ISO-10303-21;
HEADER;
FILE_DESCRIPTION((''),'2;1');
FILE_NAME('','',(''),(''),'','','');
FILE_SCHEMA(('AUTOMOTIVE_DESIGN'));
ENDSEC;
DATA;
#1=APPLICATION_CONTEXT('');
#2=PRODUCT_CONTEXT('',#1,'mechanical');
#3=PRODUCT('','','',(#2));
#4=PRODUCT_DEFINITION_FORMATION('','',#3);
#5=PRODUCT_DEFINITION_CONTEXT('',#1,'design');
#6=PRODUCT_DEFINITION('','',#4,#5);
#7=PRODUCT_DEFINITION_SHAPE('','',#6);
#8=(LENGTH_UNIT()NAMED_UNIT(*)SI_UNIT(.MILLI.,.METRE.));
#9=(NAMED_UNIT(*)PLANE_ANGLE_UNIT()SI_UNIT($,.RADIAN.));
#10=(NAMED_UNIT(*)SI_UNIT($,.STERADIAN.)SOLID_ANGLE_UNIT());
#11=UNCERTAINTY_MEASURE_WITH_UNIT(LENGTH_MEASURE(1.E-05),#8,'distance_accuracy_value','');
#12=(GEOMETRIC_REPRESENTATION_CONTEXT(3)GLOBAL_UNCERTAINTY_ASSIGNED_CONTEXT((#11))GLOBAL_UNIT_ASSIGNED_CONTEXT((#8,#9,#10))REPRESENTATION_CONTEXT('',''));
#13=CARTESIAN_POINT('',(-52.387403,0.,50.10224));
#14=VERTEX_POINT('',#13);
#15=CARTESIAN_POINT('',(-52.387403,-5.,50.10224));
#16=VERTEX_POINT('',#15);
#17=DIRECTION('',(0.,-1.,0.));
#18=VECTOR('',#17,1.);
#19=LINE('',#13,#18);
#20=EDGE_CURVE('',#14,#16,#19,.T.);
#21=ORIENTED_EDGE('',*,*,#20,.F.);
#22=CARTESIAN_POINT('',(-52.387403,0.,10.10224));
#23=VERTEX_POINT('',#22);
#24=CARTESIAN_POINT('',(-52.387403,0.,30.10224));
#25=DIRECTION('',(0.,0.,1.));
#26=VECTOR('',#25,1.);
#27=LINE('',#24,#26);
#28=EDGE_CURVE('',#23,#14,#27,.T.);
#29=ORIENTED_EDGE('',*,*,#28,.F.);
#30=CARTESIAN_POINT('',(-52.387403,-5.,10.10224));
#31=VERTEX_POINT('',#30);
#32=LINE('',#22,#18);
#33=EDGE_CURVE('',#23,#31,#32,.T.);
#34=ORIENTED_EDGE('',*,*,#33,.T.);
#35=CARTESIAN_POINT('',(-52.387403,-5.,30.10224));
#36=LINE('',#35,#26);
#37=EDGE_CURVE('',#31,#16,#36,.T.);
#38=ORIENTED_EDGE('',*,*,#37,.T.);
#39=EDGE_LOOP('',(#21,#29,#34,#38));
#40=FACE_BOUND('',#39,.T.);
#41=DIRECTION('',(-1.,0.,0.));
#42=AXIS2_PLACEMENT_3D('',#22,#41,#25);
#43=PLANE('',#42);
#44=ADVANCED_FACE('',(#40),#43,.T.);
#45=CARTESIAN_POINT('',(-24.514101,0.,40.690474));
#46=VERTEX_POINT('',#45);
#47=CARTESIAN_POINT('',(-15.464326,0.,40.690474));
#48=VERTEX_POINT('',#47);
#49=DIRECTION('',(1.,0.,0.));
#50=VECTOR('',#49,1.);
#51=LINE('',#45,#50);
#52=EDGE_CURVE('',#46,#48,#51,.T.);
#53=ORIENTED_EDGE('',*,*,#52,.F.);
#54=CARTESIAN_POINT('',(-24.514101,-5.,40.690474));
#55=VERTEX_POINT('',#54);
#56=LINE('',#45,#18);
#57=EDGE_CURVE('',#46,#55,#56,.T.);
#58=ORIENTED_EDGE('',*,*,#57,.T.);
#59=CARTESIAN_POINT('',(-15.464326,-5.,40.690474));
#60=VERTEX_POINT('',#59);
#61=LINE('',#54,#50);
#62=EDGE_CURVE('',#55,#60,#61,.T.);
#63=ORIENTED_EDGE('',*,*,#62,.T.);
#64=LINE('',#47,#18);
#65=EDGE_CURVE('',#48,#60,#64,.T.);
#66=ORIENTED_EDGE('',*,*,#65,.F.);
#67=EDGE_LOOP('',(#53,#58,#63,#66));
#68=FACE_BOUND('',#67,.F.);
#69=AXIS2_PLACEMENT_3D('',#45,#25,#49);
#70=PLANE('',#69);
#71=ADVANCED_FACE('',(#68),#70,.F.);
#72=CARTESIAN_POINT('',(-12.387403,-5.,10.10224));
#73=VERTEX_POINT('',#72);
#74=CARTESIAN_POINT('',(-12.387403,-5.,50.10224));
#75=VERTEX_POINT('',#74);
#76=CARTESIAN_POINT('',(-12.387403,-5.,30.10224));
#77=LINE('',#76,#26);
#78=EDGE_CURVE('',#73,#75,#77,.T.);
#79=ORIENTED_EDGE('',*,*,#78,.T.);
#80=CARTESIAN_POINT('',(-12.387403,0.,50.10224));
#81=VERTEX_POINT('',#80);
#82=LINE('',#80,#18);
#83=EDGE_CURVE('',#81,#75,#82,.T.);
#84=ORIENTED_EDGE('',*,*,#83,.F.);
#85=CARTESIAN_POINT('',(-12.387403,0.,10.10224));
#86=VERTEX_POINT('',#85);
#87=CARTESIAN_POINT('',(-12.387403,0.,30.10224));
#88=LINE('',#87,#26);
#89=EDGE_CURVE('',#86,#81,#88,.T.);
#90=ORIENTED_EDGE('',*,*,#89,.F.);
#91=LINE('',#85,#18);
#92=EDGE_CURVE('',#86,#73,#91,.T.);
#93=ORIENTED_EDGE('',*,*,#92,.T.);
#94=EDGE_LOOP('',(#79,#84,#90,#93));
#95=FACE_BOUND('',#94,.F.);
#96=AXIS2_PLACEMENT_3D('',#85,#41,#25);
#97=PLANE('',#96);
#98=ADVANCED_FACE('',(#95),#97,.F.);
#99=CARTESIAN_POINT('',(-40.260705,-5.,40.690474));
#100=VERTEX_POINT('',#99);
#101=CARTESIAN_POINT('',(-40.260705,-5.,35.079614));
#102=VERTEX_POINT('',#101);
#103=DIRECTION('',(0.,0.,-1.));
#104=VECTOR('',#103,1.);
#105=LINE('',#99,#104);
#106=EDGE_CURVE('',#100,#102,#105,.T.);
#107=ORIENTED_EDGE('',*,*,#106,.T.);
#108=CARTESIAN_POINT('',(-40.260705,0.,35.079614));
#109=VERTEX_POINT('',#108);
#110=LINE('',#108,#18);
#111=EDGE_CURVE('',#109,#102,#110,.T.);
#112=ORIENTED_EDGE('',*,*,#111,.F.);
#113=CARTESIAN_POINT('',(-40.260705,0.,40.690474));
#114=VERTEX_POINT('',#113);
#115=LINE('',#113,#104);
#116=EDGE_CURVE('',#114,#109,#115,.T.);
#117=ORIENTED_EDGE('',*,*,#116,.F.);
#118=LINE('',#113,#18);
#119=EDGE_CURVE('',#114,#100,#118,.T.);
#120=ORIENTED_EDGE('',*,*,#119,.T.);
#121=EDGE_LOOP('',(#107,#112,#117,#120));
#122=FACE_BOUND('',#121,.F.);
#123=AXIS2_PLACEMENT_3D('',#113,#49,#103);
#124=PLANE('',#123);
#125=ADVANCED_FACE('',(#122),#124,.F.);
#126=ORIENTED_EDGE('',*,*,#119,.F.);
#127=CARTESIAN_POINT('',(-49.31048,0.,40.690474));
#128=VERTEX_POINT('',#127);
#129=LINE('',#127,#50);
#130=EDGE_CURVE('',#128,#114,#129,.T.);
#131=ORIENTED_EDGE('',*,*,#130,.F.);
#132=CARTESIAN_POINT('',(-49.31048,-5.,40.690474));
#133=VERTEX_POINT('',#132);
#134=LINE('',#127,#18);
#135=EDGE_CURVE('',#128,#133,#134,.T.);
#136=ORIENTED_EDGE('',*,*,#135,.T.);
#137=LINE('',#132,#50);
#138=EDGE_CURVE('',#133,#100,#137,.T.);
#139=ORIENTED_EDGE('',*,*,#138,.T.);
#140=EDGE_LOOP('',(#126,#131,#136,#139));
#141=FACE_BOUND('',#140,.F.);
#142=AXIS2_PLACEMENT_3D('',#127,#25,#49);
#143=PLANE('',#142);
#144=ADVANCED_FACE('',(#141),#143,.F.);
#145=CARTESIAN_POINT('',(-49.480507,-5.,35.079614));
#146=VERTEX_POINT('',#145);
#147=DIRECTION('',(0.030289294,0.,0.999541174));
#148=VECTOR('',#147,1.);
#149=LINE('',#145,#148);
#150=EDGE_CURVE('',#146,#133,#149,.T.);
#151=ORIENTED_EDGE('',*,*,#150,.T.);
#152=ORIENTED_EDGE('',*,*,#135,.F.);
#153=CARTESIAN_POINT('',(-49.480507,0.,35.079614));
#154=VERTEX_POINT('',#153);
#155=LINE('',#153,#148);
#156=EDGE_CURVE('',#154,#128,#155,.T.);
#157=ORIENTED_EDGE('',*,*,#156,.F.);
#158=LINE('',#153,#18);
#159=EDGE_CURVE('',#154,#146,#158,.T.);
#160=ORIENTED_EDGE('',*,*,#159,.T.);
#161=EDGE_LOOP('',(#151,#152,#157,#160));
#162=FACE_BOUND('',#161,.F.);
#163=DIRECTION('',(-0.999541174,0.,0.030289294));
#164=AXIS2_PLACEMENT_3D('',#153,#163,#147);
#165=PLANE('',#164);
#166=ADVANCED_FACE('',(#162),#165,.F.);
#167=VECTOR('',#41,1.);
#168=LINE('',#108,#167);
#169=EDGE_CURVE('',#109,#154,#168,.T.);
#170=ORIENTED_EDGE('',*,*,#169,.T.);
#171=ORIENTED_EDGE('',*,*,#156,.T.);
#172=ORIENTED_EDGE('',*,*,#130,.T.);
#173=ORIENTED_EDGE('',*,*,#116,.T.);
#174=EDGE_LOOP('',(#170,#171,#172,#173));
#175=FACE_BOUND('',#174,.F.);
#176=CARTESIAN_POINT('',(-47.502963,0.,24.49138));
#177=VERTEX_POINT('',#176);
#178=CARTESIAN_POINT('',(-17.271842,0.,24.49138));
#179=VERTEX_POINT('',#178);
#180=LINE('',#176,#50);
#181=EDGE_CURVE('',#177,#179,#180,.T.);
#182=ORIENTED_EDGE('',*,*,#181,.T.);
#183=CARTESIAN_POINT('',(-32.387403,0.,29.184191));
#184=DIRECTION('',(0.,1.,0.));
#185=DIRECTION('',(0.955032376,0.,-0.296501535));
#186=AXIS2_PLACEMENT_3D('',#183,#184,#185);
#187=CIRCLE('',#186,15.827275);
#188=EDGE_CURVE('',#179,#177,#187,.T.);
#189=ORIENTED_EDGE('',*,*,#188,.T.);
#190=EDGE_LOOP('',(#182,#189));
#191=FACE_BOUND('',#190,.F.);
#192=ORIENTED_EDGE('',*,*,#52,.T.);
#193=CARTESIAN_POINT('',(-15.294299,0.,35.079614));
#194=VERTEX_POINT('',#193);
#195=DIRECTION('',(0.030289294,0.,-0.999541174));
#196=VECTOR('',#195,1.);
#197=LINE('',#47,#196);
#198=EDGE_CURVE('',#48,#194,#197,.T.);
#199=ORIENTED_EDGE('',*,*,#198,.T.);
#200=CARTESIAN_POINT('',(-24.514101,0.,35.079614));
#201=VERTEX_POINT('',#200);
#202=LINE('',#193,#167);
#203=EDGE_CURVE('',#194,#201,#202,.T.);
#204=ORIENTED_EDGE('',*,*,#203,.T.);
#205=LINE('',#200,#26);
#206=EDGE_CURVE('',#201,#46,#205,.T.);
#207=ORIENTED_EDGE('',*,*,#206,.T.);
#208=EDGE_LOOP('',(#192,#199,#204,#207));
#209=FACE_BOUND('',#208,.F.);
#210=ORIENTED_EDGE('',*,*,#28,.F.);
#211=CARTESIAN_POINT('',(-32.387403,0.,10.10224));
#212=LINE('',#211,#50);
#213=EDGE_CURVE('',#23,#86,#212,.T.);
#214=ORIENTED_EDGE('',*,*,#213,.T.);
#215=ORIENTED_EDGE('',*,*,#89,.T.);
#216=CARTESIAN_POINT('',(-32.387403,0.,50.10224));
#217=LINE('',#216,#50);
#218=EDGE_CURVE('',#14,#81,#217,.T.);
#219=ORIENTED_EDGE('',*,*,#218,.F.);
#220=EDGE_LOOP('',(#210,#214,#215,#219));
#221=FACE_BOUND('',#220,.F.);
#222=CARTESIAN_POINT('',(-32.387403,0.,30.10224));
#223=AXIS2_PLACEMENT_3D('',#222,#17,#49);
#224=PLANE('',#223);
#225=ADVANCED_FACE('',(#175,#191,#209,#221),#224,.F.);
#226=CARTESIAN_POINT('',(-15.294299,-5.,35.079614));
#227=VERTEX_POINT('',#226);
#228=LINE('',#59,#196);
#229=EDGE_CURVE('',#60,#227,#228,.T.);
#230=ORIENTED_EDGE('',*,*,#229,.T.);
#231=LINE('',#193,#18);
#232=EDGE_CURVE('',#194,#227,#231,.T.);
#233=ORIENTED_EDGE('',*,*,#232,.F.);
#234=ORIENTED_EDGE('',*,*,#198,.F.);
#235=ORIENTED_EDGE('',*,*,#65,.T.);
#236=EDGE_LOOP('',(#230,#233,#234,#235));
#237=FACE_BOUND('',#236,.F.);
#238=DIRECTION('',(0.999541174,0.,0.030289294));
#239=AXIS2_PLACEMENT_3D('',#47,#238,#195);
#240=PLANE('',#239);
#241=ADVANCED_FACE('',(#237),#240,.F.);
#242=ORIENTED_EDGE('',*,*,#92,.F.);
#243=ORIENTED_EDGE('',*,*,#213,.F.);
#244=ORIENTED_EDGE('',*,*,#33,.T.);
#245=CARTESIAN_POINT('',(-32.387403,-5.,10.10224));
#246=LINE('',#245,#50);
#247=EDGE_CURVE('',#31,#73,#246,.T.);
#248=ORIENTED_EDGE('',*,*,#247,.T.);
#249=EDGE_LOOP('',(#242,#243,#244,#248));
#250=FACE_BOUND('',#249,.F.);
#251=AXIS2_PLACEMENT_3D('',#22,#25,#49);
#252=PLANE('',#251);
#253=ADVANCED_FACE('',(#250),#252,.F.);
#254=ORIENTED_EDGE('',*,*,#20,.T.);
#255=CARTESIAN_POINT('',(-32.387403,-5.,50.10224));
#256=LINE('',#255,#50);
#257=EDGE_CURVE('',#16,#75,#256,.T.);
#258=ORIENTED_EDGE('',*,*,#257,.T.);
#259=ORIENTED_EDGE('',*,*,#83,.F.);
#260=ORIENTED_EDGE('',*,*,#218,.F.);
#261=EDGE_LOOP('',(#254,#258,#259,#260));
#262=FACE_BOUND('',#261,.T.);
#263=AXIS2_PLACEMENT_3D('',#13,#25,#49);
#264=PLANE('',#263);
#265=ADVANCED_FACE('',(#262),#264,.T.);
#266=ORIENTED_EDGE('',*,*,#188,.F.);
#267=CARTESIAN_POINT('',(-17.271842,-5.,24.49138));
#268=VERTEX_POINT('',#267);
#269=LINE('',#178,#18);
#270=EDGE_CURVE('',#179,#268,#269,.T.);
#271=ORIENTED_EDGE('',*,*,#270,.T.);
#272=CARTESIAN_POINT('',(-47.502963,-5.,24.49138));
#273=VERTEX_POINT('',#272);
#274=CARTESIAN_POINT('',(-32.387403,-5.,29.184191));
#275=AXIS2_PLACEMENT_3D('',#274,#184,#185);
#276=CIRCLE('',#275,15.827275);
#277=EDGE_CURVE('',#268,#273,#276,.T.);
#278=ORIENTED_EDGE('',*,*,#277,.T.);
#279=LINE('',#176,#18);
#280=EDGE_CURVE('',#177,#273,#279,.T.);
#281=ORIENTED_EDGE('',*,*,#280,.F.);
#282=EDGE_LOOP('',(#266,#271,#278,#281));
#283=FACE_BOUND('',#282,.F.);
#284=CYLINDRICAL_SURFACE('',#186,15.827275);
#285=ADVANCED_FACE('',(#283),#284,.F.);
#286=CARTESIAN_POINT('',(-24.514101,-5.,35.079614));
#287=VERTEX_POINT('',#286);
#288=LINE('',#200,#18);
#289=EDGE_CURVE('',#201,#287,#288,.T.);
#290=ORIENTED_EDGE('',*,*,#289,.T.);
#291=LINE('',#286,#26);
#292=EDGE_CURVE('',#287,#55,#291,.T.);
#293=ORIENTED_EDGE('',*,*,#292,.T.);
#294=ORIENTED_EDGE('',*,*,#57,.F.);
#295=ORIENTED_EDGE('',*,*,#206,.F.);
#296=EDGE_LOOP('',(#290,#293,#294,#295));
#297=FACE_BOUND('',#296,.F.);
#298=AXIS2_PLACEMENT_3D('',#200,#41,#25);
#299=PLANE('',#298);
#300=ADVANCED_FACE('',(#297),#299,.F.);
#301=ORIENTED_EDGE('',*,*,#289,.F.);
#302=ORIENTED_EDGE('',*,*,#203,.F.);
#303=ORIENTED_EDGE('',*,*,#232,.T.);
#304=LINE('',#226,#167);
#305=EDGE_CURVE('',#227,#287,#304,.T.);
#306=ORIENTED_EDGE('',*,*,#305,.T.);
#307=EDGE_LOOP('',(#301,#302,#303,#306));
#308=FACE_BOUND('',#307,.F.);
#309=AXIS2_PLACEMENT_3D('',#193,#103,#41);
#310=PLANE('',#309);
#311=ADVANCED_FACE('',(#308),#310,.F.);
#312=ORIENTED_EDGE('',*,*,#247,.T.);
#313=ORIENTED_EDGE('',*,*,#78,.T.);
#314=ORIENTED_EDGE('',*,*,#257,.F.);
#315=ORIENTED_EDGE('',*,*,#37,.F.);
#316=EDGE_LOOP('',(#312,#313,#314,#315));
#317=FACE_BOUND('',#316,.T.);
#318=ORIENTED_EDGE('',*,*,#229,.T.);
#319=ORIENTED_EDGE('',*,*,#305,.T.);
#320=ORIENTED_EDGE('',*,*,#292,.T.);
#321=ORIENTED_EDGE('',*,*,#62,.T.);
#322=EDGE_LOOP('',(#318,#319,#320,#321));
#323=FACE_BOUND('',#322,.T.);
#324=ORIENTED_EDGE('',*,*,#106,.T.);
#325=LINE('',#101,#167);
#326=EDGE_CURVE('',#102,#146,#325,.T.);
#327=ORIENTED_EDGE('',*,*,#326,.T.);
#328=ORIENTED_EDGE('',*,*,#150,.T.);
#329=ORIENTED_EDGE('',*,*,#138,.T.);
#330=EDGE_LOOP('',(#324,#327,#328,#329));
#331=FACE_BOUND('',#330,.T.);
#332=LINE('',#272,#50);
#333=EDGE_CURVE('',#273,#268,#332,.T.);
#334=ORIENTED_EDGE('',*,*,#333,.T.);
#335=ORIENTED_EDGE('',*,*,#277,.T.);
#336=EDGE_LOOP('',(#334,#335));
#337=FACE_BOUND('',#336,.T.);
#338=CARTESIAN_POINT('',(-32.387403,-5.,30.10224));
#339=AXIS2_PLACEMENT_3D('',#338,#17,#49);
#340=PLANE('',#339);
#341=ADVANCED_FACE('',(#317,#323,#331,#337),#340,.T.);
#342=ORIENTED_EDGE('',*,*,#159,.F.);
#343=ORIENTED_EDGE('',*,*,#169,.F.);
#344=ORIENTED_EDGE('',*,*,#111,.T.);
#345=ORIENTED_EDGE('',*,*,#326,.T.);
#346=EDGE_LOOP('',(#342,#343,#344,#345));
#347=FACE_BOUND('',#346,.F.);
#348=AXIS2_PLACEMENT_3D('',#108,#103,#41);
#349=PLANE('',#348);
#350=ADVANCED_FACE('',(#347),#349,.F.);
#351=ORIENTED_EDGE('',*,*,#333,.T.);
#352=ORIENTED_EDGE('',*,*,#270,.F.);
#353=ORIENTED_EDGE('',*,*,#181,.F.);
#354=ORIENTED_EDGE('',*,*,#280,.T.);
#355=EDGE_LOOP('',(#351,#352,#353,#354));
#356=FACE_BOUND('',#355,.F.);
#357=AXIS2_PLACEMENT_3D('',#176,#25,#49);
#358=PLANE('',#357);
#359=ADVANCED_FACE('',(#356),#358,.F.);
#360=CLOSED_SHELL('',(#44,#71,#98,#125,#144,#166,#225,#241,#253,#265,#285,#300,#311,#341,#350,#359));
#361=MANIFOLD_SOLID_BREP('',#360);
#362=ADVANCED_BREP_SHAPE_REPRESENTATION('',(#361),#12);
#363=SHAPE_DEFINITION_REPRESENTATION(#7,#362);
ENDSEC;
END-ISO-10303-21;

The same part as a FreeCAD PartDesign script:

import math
import FreeCAD as App
import Part
import Sketcher
from FreeCAD import Vector


def add_polygon(sketch, points):
    """Adds a closed chain of lines whose ends are joined by coincident constraints."""
    first, n = sketch.GeometryCount, len(points)
    for a, b in zip(points, points[1:] + points[:1]):
        sketch.addGeometry(Part.LineSegment(App.Vector(*a, 0), App.Vector(*b, 0)), False)
    for i in range(n):
        sketch.addConstraint(Sketcher.Constraint("Coincident", first + i, 2, first + (i + 1) % n, 1))

doc = App.newDocument("Part")
body = doc.addObject("PartDesign::Body", "Body")

# Sketch on XZ plane
sketch1 = body.newObject("Sketcher::SketchObject", "Sketch")
sketch1.AttachmentSupport = (doc.getObject("XZ_Plane"), [""])
sketch1.MapMode = "FlatFace"
add_polygon(sketch1, [(-52, 50), (-52, 10), (-12, 10), (-12, 50)])  # lines 0-3
sketch1.addGeometry(Part.LineSegment(Vector(-48, 24, 0), Vector(-17, 24, 0)), False)  # 4
sketch1.addGeometry(Part.ArcOfCircle(Part.Circle(Vector(-32, 29, 0), Vector(0, 0, 1), 16), math.radians(-163), math.radians(-17)), False)  # 5
add_polygon(sketch1, [(-40, 35), (-49, 35), (-49, 41), (-40, 41)])  # lines 6-9
add_polygon(sketch1, [(-25, 41), (-15, 41), (-15, 35), (-25, 35)])  # lines 10-13
sketch1.addConstraint([
    Sketcher.Constraint("Coincident", 4, 1, 5, 1),
    Sketcher.Constraint("Coincident", 5, 2, 4, 2),
    Sketcher.Constraint("Vertical", 0),
    Sketcher.Constraint("Horizontal", 1),
    Sketcher.Constraint("Vertical", 2),
    Sketcher.Constraint("Horizontal", 3),
    Sketcher.Constraint("Horizontal", 4),
    Sketcher.Constraint("Horizontal", 6),
    Sketcher.Constraint("Horizontal", 8),
    Sketcher.Constraint("Vertical", 9),
    Sketcher.Constraint("Horizontal", 10),
    Sketcher.Constraint("Horizontal", 12),
    Sketcher.Constraint("Vertical", 13),
    Sketcher.Constraint("Horizontal", 8, 2, 10, 2),
    Sketcher.Constraint("Horizontal", 9, 2, 11, 2),
    Sketcher.Constraint("Equal", 8, 10),
    Sketcher.Constraint("Equal", 6, 12),
    Sketcher.Constraint("Equal", 3, 0),
    Sketcher.Constraint("DistanceX", 1, 1, 1, 2, 40.0),
    Sketcher.Constraint("DistanceX", 0, 2, 5, 3, 20.0),
    Sketcher.Constraint("Radius", 5, 15.827275),
    Sketcher.Constraint("DistanceX", 4, 1, 4, 2, 30.231121),
    Sketcher.Constraint("DistanceY", 9, 2, 9, 1, 5.61086),
    Sketcher.Constraint("DistanceX", 11, 2, -1, 1, 15.294299),
    Sketcher.Constraint("DistanceX", 12, 2, -1, 1, 24.514101),
    Sketcher.Constraint("DistanceX", 5, 3, 12, 2, 7.873302),
    Sketcher.Constraint("DistanceX", 8, 1, 8, 2, 9.049775),
    Sketcher.Constraint("DistanceY", -1, 1, 5, 3, 29.184191),
    Sketcher.Constraint("DistanceY", -1, 1, 0, 2, 10.10224),
    Sketcher.Constraint("DistanceX", 7, 2, -1, 1, 49.31048),
    Sketcher.Constraint("DistanceY", -1, 1, 6, 2, 35.079614),
])
pad1 = body.newObject("PartDesign::Pad", "Pad")
pad1.Profile = sketch1
pad1.Length = 5

doc.recompute()
